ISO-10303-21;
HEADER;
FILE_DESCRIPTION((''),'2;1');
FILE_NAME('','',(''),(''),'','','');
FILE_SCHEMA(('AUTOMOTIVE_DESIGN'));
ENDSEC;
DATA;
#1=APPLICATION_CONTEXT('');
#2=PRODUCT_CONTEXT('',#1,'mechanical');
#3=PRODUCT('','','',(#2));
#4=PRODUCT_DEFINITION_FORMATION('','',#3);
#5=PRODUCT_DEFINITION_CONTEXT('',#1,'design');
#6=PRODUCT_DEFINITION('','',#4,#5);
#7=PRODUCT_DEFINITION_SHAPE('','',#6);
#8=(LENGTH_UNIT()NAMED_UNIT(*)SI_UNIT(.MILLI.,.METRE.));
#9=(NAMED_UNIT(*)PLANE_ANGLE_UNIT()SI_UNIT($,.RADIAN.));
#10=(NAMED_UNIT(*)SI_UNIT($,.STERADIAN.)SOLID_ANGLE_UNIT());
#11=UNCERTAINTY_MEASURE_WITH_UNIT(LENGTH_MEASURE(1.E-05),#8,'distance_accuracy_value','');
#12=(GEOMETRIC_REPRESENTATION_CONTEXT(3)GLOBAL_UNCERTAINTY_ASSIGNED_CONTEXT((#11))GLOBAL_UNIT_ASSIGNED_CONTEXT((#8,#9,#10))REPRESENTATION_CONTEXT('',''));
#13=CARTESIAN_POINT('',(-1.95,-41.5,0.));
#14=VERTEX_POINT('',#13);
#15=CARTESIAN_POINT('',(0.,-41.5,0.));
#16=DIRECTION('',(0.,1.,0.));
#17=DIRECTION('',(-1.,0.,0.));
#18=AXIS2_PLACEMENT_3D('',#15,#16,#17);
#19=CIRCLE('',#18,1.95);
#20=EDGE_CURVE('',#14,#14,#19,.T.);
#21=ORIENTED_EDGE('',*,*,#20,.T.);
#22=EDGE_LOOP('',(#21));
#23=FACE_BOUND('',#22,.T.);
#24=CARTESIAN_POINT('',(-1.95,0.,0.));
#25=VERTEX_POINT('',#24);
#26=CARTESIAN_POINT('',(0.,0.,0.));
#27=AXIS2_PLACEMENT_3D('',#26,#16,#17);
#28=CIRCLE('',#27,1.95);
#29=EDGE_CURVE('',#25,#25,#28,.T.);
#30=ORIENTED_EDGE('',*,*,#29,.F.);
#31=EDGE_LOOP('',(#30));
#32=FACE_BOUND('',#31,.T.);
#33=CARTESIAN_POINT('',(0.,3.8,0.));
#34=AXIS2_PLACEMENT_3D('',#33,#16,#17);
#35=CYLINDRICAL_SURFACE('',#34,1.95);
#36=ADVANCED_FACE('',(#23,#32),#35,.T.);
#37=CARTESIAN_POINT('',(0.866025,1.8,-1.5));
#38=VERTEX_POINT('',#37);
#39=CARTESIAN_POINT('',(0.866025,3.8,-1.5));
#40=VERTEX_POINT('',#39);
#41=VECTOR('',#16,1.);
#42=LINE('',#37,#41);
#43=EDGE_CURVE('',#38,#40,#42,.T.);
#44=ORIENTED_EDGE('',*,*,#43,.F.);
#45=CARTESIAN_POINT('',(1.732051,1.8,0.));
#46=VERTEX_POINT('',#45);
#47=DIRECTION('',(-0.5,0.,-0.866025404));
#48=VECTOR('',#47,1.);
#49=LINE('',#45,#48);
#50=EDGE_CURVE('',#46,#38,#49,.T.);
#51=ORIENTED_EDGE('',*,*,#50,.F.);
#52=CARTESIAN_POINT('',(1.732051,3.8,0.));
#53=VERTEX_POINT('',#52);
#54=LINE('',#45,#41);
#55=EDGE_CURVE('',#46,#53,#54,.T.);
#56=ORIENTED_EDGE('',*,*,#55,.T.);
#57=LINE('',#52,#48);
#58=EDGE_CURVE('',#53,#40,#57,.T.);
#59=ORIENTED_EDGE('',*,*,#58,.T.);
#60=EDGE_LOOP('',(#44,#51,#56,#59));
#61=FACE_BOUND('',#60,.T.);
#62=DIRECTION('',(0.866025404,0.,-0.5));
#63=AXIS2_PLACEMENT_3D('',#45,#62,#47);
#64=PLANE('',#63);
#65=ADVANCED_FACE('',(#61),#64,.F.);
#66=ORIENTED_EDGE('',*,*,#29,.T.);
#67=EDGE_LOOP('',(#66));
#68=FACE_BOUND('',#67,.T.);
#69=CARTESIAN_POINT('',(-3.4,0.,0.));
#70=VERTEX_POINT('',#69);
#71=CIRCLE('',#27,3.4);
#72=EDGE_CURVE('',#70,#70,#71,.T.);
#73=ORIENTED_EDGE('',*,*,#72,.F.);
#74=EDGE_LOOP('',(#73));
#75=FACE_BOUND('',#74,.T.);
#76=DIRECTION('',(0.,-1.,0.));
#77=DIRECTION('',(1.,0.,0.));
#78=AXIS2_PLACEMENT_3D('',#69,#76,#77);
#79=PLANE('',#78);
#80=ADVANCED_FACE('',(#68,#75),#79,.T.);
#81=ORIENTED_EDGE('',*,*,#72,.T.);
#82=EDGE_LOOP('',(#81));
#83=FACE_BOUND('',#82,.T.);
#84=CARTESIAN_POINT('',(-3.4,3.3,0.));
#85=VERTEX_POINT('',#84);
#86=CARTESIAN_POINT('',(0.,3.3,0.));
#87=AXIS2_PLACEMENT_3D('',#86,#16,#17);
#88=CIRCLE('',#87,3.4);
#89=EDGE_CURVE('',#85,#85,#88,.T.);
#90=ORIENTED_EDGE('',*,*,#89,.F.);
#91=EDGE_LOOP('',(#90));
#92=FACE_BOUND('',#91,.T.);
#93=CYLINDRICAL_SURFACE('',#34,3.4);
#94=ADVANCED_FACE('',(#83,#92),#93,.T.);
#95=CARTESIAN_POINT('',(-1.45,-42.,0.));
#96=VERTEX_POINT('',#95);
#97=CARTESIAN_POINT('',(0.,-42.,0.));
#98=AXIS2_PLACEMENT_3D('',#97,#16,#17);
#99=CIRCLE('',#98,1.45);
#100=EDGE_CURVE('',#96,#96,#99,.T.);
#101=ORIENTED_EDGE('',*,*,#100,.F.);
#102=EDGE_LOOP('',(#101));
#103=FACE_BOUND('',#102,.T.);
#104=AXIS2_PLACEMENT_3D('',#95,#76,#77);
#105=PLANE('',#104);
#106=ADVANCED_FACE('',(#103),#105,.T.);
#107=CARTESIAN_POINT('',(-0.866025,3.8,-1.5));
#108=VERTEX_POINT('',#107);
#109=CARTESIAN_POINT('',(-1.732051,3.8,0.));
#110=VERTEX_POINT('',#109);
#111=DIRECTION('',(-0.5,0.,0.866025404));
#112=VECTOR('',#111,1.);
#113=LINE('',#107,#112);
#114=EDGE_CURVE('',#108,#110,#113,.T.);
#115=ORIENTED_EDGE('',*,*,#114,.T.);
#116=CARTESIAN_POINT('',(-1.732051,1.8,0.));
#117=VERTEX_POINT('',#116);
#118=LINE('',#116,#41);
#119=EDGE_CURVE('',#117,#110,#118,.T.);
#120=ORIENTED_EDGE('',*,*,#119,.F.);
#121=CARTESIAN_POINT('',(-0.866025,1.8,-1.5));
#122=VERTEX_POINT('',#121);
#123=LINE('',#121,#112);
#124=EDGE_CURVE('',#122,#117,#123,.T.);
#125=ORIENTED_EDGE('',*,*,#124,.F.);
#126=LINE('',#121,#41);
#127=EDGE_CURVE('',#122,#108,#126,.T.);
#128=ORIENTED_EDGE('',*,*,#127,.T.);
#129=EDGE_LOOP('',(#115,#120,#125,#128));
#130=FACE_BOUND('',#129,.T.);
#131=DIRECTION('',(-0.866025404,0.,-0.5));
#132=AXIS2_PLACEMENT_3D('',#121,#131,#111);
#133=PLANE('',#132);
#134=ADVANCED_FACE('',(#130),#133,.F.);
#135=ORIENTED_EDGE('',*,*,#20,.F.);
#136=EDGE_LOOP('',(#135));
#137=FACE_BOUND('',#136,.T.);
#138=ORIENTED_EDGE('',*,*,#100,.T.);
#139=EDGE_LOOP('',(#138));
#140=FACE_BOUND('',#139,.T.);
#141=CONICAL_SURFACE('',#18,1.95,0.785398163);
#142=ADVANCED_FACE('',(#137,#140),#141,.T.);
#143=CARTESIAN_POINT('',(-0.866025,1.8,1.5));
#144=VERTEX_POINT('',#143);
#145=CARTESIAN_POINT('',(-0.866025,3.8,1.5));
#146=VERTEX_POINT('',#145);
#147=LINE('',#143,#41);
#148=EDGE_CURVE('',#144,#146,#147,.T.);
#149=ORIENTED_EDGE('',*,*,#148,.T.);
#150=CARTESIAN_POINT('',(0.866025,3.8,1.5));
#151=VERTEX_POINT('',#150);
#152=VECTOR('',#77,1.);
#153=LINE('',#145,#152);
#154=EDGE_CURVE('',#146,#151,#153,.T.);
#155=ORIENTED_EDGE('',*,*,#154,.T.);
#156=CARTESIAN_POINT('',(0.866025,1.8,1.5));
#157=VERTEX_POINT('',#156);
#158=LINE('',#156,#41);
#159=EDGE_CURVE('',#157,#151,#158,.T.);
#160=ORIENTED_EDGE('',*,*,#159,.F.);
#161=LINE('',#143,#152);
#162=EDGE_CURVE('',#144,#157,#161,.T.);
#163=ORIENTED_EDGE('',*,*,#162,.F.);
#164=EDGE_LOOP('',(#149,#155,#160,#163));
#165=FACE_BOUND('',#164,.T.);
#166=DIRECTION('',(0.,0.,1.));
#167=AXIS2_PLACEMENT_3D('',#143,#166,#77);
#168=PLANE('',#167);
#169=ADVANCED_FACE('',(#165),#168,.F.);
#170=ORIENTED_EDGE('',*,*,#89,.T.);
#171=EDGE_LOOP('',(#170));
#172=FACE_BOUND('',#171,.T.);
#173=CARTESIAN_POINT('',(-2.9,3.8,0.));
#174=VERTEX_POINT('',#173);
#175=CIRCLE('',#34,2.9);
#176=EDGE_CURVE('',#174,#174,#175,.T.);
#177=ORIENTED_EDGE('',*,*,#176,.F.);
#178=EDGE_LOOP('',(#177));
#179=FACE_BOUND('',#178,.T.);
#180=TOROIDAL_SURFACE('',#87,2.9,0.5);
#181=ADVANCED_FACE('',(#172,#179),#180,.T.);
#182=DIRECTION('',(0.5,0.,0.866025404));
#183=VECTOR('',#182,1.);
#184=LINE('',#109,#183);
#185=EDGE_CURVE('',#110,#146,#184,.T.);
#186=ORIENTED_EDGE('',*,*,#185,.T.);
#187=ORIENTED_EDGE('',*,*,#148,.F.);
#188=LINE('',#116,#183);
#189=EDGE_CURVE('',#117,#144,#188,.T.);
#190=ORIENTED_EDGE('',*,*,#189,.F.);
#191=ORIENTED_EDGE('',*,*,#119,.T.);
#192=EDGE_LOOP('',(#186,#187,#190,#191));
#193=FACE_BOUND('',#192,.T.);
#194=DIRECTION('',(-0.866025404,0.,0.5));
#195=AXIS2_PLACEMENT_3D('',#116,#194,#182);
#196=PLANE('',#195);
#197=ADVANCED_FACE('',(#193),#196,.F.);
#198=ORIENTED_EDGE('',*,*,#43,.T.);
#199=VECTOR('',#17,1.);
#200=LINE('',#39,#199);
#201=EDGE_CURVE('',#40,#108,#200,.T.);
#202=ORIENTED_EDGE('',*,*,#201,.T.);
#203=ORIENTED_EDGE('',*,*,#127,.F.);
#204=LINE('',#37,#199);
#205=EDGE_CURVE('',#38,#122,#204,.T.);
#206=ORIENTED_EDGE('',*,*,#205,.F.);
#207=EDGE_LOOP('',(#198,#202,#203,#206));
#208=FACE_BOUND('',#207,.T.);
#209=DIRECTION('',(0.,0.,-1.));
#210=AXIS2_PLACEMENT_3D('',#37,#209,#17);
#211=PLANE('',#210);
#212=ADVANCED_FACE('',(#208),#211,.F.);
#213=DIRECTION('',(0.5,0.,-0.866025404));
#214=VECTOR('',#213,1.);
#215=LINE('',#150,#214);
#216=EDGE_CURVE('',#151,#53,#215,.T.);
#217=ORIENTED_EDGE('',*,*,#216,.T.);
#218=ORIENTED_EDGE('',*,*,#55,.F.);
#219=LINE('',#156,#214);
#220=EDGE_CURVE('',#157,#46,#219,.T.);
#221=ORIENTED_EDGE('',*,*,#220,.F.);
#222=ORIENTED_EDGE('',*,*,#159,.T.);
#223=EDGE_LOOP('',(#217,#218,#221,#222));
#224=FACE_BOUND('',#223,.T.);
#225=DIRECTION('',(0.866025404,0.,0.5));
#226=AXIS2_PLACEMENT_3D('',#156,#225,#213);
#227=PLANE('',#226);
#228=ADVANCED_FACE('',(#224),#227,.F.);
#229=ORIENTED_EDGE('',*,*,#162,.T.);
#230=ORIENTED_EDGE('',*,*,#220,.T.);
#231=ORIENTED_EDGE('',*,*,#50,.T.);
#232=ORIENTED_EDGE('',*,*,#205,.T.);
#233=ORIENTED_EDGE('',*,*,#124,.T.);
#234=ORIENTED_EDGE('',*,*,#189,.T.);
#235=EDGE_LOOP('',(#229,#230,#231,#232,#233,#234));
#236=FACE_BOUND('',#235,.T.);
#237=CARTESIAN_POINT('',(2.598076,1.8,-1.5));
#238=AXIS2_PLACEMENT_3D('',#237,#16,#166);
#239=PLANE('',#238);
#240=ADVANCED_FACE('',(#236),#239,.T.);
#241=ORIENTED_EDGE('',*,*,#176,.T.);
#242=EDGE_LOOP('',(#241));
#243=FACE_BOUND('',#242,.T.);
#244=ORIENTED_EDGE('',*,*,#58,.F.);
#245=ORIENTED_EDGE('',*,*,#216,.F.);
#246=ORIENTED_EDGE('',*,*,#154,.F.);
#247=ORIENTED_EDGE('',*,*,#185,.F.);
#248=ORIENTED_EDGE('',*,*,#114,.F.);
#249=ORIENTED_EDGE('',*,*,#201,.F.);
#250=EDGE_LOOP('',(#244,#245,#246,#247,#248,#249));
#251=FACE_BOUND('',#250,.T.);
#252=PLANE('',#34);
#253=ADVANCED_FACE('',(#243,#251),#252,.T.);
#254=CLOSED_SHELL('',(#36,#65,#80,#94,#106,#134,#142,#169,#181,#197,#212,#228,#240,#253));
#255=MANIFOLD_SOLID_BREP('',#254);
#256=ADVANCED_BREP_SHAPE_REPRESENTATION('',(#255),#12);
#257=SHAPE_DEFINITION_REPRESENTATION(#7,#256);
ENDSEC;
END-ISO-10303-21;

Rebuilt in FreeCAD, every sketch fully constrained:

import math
import FreeCAD as App
import Part
import Sketcher
Q = App.Units.Quantity

doc = App.newDocument("Part")
body = doc.addObject("PartDesign::Body", "Body")

sketch1 = body.newObject("Sketcher::SketchObject", "Sketch")
sketch1.AttachmentSupport = (doc.getObject("XY_Plane"), [""])
sketch1.MapMode = "FlatFace"
sketch1.addGeometry(Part.LineSegment(App.Vector(0, 3.8, 0), App.Vector(-2.9, 3.8, 0)), False)
sketch1.addGeometry(Part.ArcOfCircle(Part.Circle(App.Vector(-2.9, 3.3, 0), App.Vector(0, 0, 1), 0.5), math.radians(90), math.radians(180)), False)
sketch1.addGeometry(Part.LineSegment(App.Vector(-3.4, 3.3, 0), App.Vector(-3.4, 0, 0)), False)
sketch1.addGeometry(Part.LineSegment(App.Vector(-3.4, 0, 0), App.Vector(-1.95, 0, 0)), False)
sketch1.addGeometry(Part.LineSegment(App.Vector(-1.95, 0, 0), App.Vector(-1.95, -41.5, 0)), False)
sketch1.addGeometry(Part.LineSegment(App.Vector(-1.95, -41.5, 0), App.Vector(-1.45, -42, 0)), False)
sketch1.addGeometry(Part.LineSegment(App.Vector(-1.45, -42, 0), App.Vector(0, -42, 0)), False)
sketch1.addGeometry(Part.LineSegment(App.Vector(0, -42, 0), App.Vector(0, 3.8, 0)), False)
sketch1.addConstraint(Sketcher.Constraint("Tangent", 0, 2, 1, 1))
sketch1.addConstraint(Sketcher.Constraint("Tangent", 1, 2, 2, 1))
sketch1.addConstraint(Sketcher.Constraint("Coincident", 2, 2, 3, 1))
sketch1.addConstraint(Sketcher.Constraint("Coincident", 3, 2, 4, 1))
sketch1.addConstraint(Sketcher.Constraint("Coincident", 4, 2, 5, 1))
sketch1.addConstraint(Sketcher.Constraint("Coincident", 5, 2, 6, 1))
sketch1.addConstraint(Sketcher.Constraint("Coincident", 6, 2, 7, 1))
sketch1.addConstraint(Sketcher.Constraint("Coincident", 7, 2, 0, 1))
sketch1.addConstraint(Sketcher.Constraint("Horizontal", 0))
sketch1.addConstraint(Sketcher.Constraint("Vertical", 2))
sketch1.addConstraint(Sketcher.Constraint("Horizontal", 3))
sketch1.addConstraint(Sketcher.Constraint("Vertical", 4))
sketch1.addConstraint(Sketcher.Constraint("Horizontal", 6))
sketch1.addConstraint(Sketcher.Constraint("Vertical", 7))
sketch1.addConstraint(Sketcher.Constraint("PointOnObject", 2, 2, -1))
sketch1.addConstraint(Sketcher.Constraint("PointOnObject", 6, 2, -2))
sketch1.addConstraint(Sketcher.Constraint("Equal", 3, 6))
sketch1.addConstraint(Sketcher.Constraint("Radius", 1, 0.5))
sketch1.addConstraint(Sketcher.Constraint("Angle", 5, Q("-45 deg")))
sketch1.addConstraint(Sketcher.Constraint("DistanceX", 0, 2, 0, 1, 2.9))
sketch1.addConstraint(Sketcher.Constraint("DistanceY", 2, 2, 2, 1, 3.3))
sketch1.addConstraint(Sketcher.Constraint("DistanceY", 4, 2, 4, 1, 41.5))
sketch1.addConstraint(Sketcher.Constraint("DistanceY", 7, 1, 7, 2, 45.8))
revolution = body.newObject("PartDesign::Revolution", "Revolution")
revolution.Profile = sketch1
revolution.ReferenceAxis = (sketch1, ["V_Axis"])
revolution.Angle = 360

sketch2 = body.newObject("Sketcher::SketchObject", "Sketch001")
sketch2.AttachmentSupport = (doc.getObject("XZ_Plane"), [""])
sketch2.MapMode = "FlatFace"
sketch2.AttachmentOffset = App.Placement(App.Vector(0, 0, -3.8), App.Rotation())
sketch2.addGeometry(Part.LineSegment(App.Vector(1.732051, 0, 0), App.Vector(0.866025, -1.5, 0)), False)
sketch2.addGeometry(Part.LineSegment(App.Vector(0.866025, -1.5, 0), App.Vector(-0.866025, -1.5, 0)), False)
sketch2.addGeometry(Part.LineSegment(App.Vector(-0.866025, -1.5, 0), App.Vector(-1.732051, 0, 0)), False)
sketch2.addGeometry(Part.LineSegment(App.Vector(-1.732051, 0, 0), App.Vector(-0.866025, 1.5, 0)), False)
sketch2.addGeometry(Part.LineSegment(App.Vector(-0.866025, 1.5, 0), App.Vector(0.866025, 1.5, 0)), False)
sketch2.addGeometry(Part.LineSegment(App.Vector(0.866025, 1.5, 0), App.Vector(1.732051, 0, 0)), False)
sketch2.addConstraint(Sketcher.Constraint("Coincident", 0, 2, 1, 1))
sketch2.addConstraint(Sketcher.Constraint("Coincident", 1, 2, 2, 1))
sketch2.addConstraint(Sketcher.Constraint("Coincident", 2, 2, 3, 1))
sketch2.addConstraint(Sketcher.Constraint("Coincident", 3, 2, 4, 1))
sketch2.addConstraint(Sketcher.Constraint("Coincident", 4, 2, 5, 1))
sketch2.addConstraint(Sketcher.Constraint("Coincident", 5, 2, 0, 1))
sketch2.addConstraint(Sketcher.Constraint("Horizontal", 1))
sketch2.addConstraint(Sketcher.Constraint("Horizontal", 4))
sketch2.addConstraint(Sketcher.Constraint("Symmetric", 0, 2, 3, 2, -1, 1))
sketch2.addConstraint(Sketcher.Constraint("Symmetric", 2, 2, 5, 2, -1, 1))
sketch2.addConstraint(Sketcher.Constraint("PointOnObject", 2, 2, -1))
sketch2.addConstraint(Sketcher.Constraint("Parallel", 2, 5))
sketch2.addConstraint(Sketcher.Constraint("Vertical", 1, 2, 3, 2))
sketch2.addConstraint(Sketcher.Constraint("Angle", 0, Q("-120 deg")))
sketch2.addConstraint(Sketcher.Constraint("DistanceY", 1, 2, 3, 2, 3.0))
sketch2.addConstraint(Sketcher.Constraint("DistanceX", 1, 2, 1, 1, 1.732051))
pocket1 = body.newObject("PartDesign::Pocket", "Pocket")
pocket1.Profile = sketch2
pocket1.Length = 2
pocket1.Reversed = True

doc.recompute()
